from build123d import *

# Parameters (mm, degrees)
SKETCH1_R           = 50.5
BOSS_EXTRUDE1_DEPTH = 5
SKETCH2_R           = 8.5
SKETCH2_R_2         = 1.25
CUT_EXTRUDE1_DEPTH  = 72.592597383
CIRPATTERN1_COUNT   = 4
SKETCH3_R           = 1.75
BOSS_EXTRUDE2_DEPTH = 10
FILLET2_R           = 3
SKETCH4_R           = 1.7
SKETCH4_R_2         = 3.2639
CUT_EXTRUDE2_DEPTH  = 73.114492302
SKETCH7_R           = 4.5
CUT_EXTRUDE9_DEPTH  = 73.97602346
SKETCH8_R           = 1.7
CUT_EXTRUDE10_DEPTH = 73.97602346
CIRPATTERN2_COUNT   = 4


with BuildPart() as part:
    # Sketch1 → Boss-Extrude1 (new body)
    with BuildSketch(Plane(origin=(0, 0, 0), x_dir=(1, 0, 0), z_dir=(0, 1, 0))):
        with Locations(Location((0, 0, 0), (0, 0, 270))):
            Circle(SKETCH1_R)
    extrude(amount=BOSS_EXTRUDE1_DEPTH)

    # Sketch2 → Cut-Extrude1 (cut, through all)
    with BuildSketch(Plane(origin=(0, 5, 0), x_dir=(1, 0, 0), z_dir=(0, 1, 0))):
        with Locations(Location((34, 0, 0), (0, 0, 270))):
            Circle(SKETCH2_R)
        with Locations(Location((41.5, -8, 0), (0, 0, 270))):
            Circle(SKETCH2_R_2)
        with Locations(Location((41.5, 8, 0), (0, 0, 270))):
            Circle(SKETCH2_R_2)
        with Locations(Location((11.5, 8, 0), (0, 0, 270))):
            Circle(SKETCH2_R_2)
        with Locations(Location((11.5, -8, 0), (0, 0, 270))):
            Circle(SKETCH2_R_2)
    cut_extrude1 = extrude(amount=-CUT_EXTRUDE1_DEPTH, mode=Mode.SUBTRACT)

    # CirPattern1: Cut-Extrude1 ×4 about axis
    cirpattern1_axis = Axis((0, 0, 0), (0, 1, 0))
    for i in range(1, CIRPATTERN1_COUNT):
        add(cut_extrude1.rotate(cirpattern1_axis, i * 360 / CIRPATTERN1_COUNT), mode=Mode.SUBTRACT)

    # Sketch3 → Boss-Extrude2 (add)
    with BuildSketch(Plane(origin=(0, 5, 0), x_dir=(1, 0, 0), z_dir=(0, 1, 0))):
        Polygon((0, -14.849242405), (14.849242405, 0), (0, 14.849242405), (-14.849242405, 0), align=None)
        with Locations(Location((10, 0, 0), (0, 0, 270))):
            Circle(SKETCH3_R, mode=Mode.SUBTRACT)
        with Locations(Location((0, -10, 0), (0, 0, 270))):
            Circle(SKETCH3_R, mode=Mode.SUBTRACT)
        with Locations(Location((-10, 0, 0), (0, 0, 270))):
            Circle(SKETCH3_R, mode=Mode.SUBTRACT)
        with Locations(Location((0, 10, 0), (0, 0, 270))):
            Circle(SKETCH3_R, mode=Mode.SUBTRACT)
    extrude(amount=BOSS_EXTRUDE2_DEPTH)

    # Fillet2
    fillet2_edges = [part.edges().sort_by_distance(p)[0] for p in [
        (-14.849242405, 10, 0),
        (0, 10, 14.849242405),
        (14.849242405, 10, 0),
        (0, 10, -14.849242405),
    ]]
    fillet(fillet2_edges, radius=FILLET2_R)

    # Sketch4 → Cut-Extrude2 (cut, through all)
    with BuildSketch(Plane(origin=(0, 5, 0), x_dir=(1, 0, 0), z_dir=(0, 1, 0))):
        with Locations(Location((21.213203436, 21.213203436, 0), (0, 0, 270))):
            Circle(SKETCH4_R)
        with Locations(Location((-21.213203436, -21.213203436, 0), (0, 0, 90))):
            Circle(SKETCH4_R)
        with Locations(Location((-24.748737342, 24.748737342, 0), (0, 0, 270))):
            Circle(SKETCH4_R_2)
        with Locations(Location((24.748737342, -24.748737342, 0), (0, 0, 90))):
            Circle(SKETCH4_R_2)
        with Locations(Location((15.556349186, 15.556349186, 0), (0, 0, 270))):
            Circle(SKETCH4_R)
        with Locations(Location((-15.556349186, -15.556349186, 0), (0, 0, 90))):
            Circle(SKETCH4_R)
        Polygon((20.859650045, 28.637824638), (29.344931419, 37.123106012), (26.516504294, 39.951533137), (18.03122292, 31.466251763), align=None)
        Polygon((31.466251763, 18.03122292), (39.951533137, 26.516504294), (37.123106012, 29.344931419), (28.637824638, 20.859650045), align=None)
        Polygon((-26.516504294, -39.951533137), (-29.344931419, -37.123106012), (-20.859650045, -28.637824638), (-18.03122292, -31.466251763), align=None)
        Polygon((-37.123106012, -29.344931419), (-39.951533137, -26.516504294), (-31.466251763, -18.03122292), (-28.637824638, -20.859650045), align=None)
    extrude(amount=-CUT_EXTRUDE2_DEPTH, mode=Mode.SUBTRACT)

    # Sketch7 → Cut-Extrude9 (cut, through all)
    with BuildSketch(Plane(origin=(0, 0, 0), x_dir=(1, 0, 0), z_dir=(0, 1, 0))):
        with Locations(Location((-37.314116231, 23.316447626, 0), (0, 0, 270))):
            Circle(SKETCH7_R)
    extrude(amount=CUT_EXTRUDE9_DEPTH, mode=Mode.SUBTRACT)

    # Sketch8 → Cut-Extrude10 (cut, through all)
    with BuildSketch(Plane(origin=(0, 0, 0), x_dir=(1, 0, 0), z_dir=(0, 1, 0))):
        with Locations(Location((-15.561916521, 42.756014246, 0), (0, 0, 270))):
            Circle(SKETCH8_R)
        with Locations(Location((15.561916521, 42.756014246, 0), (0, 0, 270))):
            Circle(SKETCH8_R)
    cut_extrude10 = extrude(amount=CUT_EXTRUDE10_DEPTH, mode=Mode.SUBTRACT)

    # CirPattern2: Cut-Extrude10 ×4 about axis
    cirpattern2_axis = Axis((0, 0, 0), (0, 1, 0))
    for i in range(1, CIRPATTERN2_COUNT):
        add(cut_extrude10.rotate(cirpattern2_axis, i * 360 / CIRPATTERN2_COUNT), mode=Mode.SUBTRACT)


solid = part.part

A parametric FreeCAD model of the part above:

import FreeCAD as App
import Part
import Sketcher
Q = App.Units.Quantity


def edges_at(feature, points):
    """Names of the edges that pass closest to the given points."""
    edges = feature.Shape.Edges
    near = lambda p: min(range(len(edges)), key=lambda i: edges[i].distToShape(Part.Vertex(*p))[0])
    return sorted({f"Edge{near(p) + 1}" for p in points})

doc = App.newDocument("Part")
body = doc.addObject("PartDesign::Body", "Body")

sketch1 = body.newObject("Sketcher::SketchObject", "Sketch")
sketch1.AttachmentSupport = (doc.getObject("XZ_Plane"), [""])
sketch1.MapMode = "FlatFace"
sketch1.addGeometry(Part.Circle(App.Vector(0, 0, 0), App.Vector(0, 0, 1), 50.5), False)
sketch1.addConstraint(Sketcher.Constraint("Coincident", 0, 3, -1, 1))
sketch1.addConstraint(Sketcher.Constraint("Diameter", 0, 101.0))
pad1 = body.newObject("PartDesign::Pad", "Pad")
pad1.Profile = sketch1
pad1.Length = 5
pad1.Reversed = True

sketch2 = body.newObject("Sketcher::SketchObject", "Sketch001")
sketch2.AttachmentSupport = (doc.getObject("XZ_Plane"), [""])
sketch2.MapMode = "FlatFace"
sketch2.AttachmentOffset = App.Placement(App.Vector(0, 0, -5), App.Rotation())
sketch2.addGeometry(Part.Circle(App.Vector(34, 0, 0), App.Vector(0, 0, 1), 8.5), False)
sketch2.addGeometry(Part.Circle(App.Vector(41.5, 8, 0), App.Vector(0, 0, 1), 1.25), False)
sketch2.addGeometry(Part.Circle(App.Vector(41.5, -8, 0), App.Vector(0, 0, 1), 1.25), False)
sketch2.addGeometry(Part.Circle(App.Vector(11.5, -8, 0), App.Vector(0, 0, 1), 1.25), False)
sketch2.addGeometry(Part.Circle(App.Vector(11.5, 8, 0), App.Vector(0, 0, 1), 1.25), False)
sketch2.addConstraint(Sketcher.Constraint("Equal", 1, 2))
sketch2.addConstraint(Sketcher.Constraint("Equal", 2, 3))
sketch2.addConstraint(Sketcher.Constraint("Equal", 3, 4))
sketch2.addConstraint(Sketcher.Constraint("Symmetric", 1, 3, 2, 3, -1))
sketch2.addConstraint(Sketcher.Constraint("Symmetric", 3, 3, 4, 3, -1))
sketch2.addConstraint(Sketcher.Constraint("PointOnObject", 0, 3, -1))
sketch2.addConstraint(Sketcher.Constraint("Horizontal", 2, 3, 3, 3))
sketch2.addConstraint(Sketcher.Constraint("Diameter", 0, 17.0))
sketch2.addConstraint(Sketcher.Constraint("Diameter", 1, 2.5))
sketch2.addConstraint(Sketcher.Constraint("DistanceX", -1, 1, 0, 3, 34.0))
sketch2.addConstraint(Sketcher.Constraint("DistanceY", -1, 1, 1, 3, 8.0))
sketch2.addConstraint(Sketcher.Constraint("DistanceX", 3, 3, 2, 3, 30.0))
sketch2.addConstraint(Sketcher.Constraint("DistanceX", -1, 1, 1, 3, 41.5))
pocket1 = body.newObject("PartDesign::Pocket", "Pocket")
pocket1.Profile = sketch2
pocket1.Type = "ThroughAll"
pocket1.Reversed = True
doc.recompute()

polarpattern = body.newObject("PartDesign::PolarPattern", "PolarPattern")
polarpattern.Originals = [pocket1]
polarpattern.Axis = (doc.getObject("Y_Axis"), [""])
polarpattern.Angle = 360
polarpattern.Occurrences = 4
body.Tip = polarpattern

sketch3 = body.newObject("Sketcher::SketchObject", "Sketch002")
sketch3.AttachmentSupport = (doc.getObject("XZ_Plane"), [""])
sketch3.MapMode = "FlatFace"
sketch3.AttachmentOffset = App.Placement(App.Vector(0, 0, -5), App.Rotation())
sketch3.addGeometry(Part.LineSegment(App.Vector(0, 14.849242, 0), App.Vector(14.849242, 0, 0)), False)
sketch3.addGeometry(Part.LineSegment(App.Vector(14.849242, 0, 0), App.Vector(0, -14.849242, 0)), False)
sketch3.addGeometry(Part.LineSegment(App.Vector(0, -14.849242, 0), App.Vector(-14.849242, 0, 0)), False)
sketch3.addGeometry(Part.LineSegment(App.Vector(-14.849242, 0, 0), App.Vector(0, 14.849242, 0)), False)
sketch3.addGeometry(Part.Circle(App.Vector(0, 10, 0), App.Vector(0, 0, 1), 1.75), False)
sketch3.addGeometry(Part.Circle(App.Vector(-10, 0, 0), App.Vector(0, 0, 1), 1.75), False)
sketch3.addGeometry(Part.Circle(App.Vector(10, 0, 0), App.Vector(0, 0, 1), 1.75), False)
sketch3.addGeometry(Part.Circle(App.Vector(0, -10, 0), App.Vector(0, 0, 1), 1.75), False)
sketch3.addConstraint(Sketcher.Constraint("Coincident", 0, 2, 1, 1))
sketch3.addConstraint(Sketcher.Constraint("Coincident", 1, 2, 2, 1))
sketch3.addConstraint(Sketcher.Constraint("Coincident", 2, 2, 3, 1))
sketch3.addConstraint(Sketcher.Constraint("Coincident", 3, 2, 0, 1))
sketch3.addConstraint(Sketcher.Constraint("Equal", 4, 5))
sketch3.addConstraint(Sketcher.Constraint("Equal", 5, 6))
sketch3.addConstraint(Sketcher.Constraint("Equal", 6, 7))
sketch3.addConstraint(Sketcher.Constraint("Symmetric", 5, 3, 6, 3, -1, 1))
sketch3.addConstraint(Sketcher.Constraint("Symmetric", 4, 3, 7, 3, -1, 1))
sketch3.addConstraint(Sketcher.Constraint("Symmetric", 0, 2, 2, 2, -1, 1))
sketch3.addConstraint(Sketcher.Constraint("Symmetric", 1, 2, 3, 2, -1, 1))
sketch3.addConstraint(Sketcher.Constraint("PointOnObject", 4, 3, -2))
sketch3.addConstraint(Sketcher.Constraint("PointOnObject", 5, 3, -1))
sketch3.addConstraint(Sketcher.Constraint("PointOnObject", 0, 2, -1))
sketch3.addConstraint(Sketcher.Constraint("PointOnObject", 1, 2, -2))
sketch3.addConstraint(Sketcher.Constraint("Perpendicular", 0, 1))
sketch3.addConstraint(Sketcher.Constraint("Diameter", 4, 3.5))
sketch3.addConstraint(Sketcher.Constraint("Distance", 0, 21.0))
sketch3.addConstraint(Sketcher.Constraint("DistanceY", -1, 1, 4, 3, 10.0))
sketch3.addConstraint(Sketcher.Constraint("DistanceX", 5, 3, -1, 1, 10.0))
pad2 = body.newObject("PartDesign::Pad", "Pad001")
pad2.Profile = sketch3
pad2.Length = 10
pad2.Reversed = True
doc.recompute()

fillet = body.newObject("PartDesign::Fillet", "Fillet")
fillet.Base = (pad2, edges_at(pad2, [
    (-14.849, 10, 0),
    (0, 10, 14.849),
    (14.849, 10, 0),
    (0, 10, -14.849),
]))
fillet.Radius = 3

sketch4 = body.newObject("Sketcher::SketchObject", "Sketch003")
sketch4.AttachmentSupport = (doc.getObject("XZ_Plane"), [""])
sketch4.MapMode = "FlatFace"
sketch4.AttachmentOffset = App.Placement(App.Vector(0, 0, -5), App.Rotation())
sketch4.addGeometry(Part.Circle(App.Vector(21.213203, -21.213203, 0), App.Vector(0, 0, 1), 1.7), False)
sketch4.addGeometry(Part.Circle(App.Vector(-21.213203, 21.213203, 0), App.Vector(0, 0, 1), 1.7), False)
sketch4.addGeometry(Part.Circle(App.Vector(-24.748737, -24.748737, 0), App.Vector(0, 0, 1), 3.2639), False)
sketch4.addGeometry(Part.Circle(App.Vector(24.748737, 24.748737, 0), App.Vector(0, 0, 1), 3.2639), False)
sketch4.addGeometry(Part.Circle(App.Vector(15.556349, -15.556349, 0), App.Vector(0, 0, 1), 1.7), False)
sketch4.addGeometry(Part.Circle(App.Vector(-15.556349, 15.556349, 0), App.Vector(0, 0, 1), 1.7), False)
sketch4.addGeometry(Part.LineSegment(App.Vector(20.85965, -28.637825, 0), App.Vector(29.344931, -37.123106, 0)), False)
sketch4.addGeometry(Part.LineSegment(App.Vector(29.344931, -37.123106, 0), App.Vector(26.516504, -39.951533, 0)), False)
sketch4.addGeometry(Part.LineSegment(App.Vector(26.516504, -39.951533, 0), App.Vector(18.031223, -31.466252, 0)), False)
sketch4.addGeometry(Part.LineSegment(App.Vector(18.031223, -31.466252, 0), App.Vector(20.85965, -28.637825, 0)), False)
sketch4.addGeometry(Part.LineSegment(App.Vector(31.466252, -18.031223, 0), App.Vector(39.951533, -26.516504, 0)), False)
sketch4.addGeometry(Part.LineSegment(App.Vector(39.951533, -26.516504, 0), App.Vector(37.123106, -29.344931, 0)), False)
sketch4.addGeometry(Part.LineSegment(App.Vector(37.123106, -29.344931, 0), App.Vector(28.637825, -20.85965, 0)), False)
sketch4.addGeometry(Part.LineSegment(App.Vector(28.637825, -20.85965, 0), App.Vector(31.466252, -18.031223, 0)), False)
sketch4.addGeometry(Part.LineSegment(App.Vector(-29.344931, 37.123106, 0), App.Vector(-26.516504, 39.951533, 0)), False)
sketch4.addGeometry(Part.LineSegment(App.Vector(-26.516504, 39.951533, 0), App.Vector(-18.031223, 31.466252, 0)), False)
sketch4.addGeometry(Part.LineSegment(App.Vector(-18.031223, 31.466252, 0), App.Vector(-20.85965, 28.637825, 0)), False)
sketch4.addGeometry(Part.LineSegment(App.Vector(-20.85965, 28.637825, 0), App.Vector(-29.344931, 37.123106, 0)), False)
sketch4.addGeometry(Part.LineSegment(App.Vector(-39.951533, 26.516504, 0), App.Vector(-37.123106, 29.344931, 0)), False)
sketch4.addGeometry(Part.LineSegment(App.Vector(-37.123106, 29.344931, 0), App.Vector(-28.637825, 20.85965, 0)), False)
sketch4.addGeometry(Part.LineSegment(App.Vector(-28.637825, 20.85965, 0), App.Vector(-31.466252, 18.031223, 0)), False)
sketch4.addGeometry(Part.LineSegment(App.Vector(-31.466252, 18.031223, 0), App.Vector(-39.951533, 26.516504, 0)), False)
sketch4.addConstraint(Sketcher.Constraint("Coincident", 6, 2, 7, 1))
sketch4.addConstraint(Sketcher.Constraint("Coincident", 7, 2, 8, 1))
sketch4.addConstraint(Sketcher.Constraint("Coincident", 8, 2, 9, 1))
sketch4.addConstraint(Sketcher.Constraint("Coincident", 9, 2, 6, 1))
sketch4.addConstraint(Sketcher.Constraint("Coincident", 10, 2, 11, 1))
sketch4.addConstraint(Sketcher.Constraint("Coincident", 11, 2, 12, 1))
sketch4.addConstraint(Sketcher.Constraint("Coincident", 12, 2, 13, 1))
sketch4.addConstraint(Sketcher.Constraint("Coincident", 13, 2, 10, 1))
sketch4.addConstraint(Sketcher.Constraint("Coincident", 14, 2, 15, 1))
sketch4.addConstraint(Sketcher.Constraint("Coincident", 15, 2, 16, 1))
sketch4.addConstraint(Sketcher.Constraint("Coincident", 16, 2, 17, 1))
sketch4.addConstraint(Sketcher.Constraint("Coincident", 17, 2, 14, 1))
sketch4.addConstraint(Sketcher.Constraint("Coincident", 18, 2, 19, 1))
sketch4.addConstraint(Sketcher.Constraint("Coincident", 19, 2, 20, 1))
sketch4.addConstraint(Sketcher.Constraint("Coincident", 20, 2, 21, 1))
sketch4.addConstraint(Sketcher.Constraint("Coincident", 21, 2, 18, 1))
sketch4.addConstraint(Sketcher.Constraint("Equal", 0, 1))
sketch4.addConstraint(Sketcher.Constraint("Equal", 2, 3))
sketch4.addConstraint(Sketcher.Constraint("Equal", 1, 4))
sketch4.addConstraint(Sketcher.Constraint("Equal", 4, 5))
sketch4.addConstraint(Sketcher.Constraint("Symmetric", 0, 3, 1, 3, -1, 1))
sketch4.addConstraint(Sketcher.Constraint("Symmetric", 2, 3, 3, 3, -1, 1))
sketch4.addConstraint(Sketcher.Constraint("Symmetric", 4, 3, 5, 3, -1, 1))
sketch4.addConstraint(Sketcher.Constraint("Symmetric", 7, 2, 14, 2, -1, 1))
sketch4.addConstraint(Sketcher.Constraint("Symmetric", 8, 2, 15, 2, -1, 1))
sketch4.addConstraint(Sketcher.Constraint("Symmetric", 9, 2, 16, 2, -1, 1))
sketch4.addConstraint(Sketcher.Constraint("Symmetric", 6, 2, 17, 2, -1, 1))
sketch4.addConstraint(Sketcher.Constraint("Symmetric", 11, 2, 18, 2, -1, 1))
sketch4.addConstraint(Sketcher.Constraint("Symmetric", 12, 2, 19, 2, -1, 1))
sketch4.addConstraint(Sketcher.Constraint("Symmetric", 13, 2, 20, 2, -1, 1))
sketch4.addConstraint(Sketcher.Constraint("Symmetric", 10, 2, 21, 2, -1, 1))
sketch4.addConstraint(Sketcher.Constraint("Perpendicular", 6, 7))
sketch4.addConstraint(Sketcher.Constraint("Perpendicular", 7, 8))
sketch4.addConstraint(Sketcher.Constraint("Perpendicular", 8, 9))
sketch4.addConstraint(Sketcher.Constraint("Perpendicular", 9, 10))
sketch4.addConstraint(Sketcher.Constraint("Perpendicular", 10, 11))
sketch4.addConstraint(Sketcher.Constraint("Perpendicular", 11, 12))
sketch4.addConstraint(Sketcher.Constraint("Perpendicular", 12, 13))
sketch4.addConstraint(Sketcher.Constraint("Equal", 8, 10))
sketch4.addConstraint(Sketcher.Constraint("Equal", 9, 11))
sketch4.addConstraint(Sketcher.Constraint("Diameter", 0, 3.4))
sketch4.addConstraint(Sketcher.Constraint("Angle", 6, Q("-45 deg")))
sketch4.addConstraint(Sketcher.Constraint("Distance", 6, 12.0))
sketch4.addConstraint(Sketcher.Constraint("Distance", 7, 4.0))
sketch4.addConstraint(Sketcher.Constraint("Diameter", 2, 6.5278))
sketch4.addConstraint(Sketcher.Constraint("DistanceX", 5, 3, 4, 3, 31.112698))
sketch4.addConstraint(Sketcher.Constraint("DistanceY", 4, 3, 5, 3, 31.112698))
sketch4.addConstraint(Sketcher.Constraint("DistanceX", 0, 3, 7, 2, 5.303301))
sketch4.addConstraint(Sketcher.Constraint("DistanceX", 4, 3, 9, 2, 5.303301))
sketch4.addConstraint(Sketcher.Constraint("DistanceX", 6, 2, 10, 2, 10.606602))
sketch4.addConstraint(Sketcher.Constraint("DistanceY", 6, 2, 10, 2, 10.606602))
sketch4.addConstraint(Sketcher.Constraint("DistanceY", 10, 2, 0, 3, 5.303301))
sketch4.addConstraint(Sketcher.Constraint("DistanceY", 12, 2, 4, 3, 5.303301))
sketch4.addConstraint(Sketcher.Constraint("DistanceX", 2, 3, 0, 3, 45.961941))
sketch4.addConstraint(Sketcher.Constraint("DistanceY", 2, 3, 1, 3, 45.961941))
pocket2 = body.newObject("PartDesign::Pocket", "Pocket001")
pocket2.Profile = sketch4
pocket2.Type = "ThroughAll"
pocket2.Reversed = True

sketch5 = body.newObject("Sketcher::SketchObject", "Sketch004")
sketch5.AttachmentSupport = (doc.getObject("XZ_Plane"), [""])
sketch5.MapMode = "FlatFace"
sketch5.addGeometry(Part.Circle(App.Vector(-37.314116, -23.316448, 0), App.Vector(0, 0, 1), 4.5), False)
sketch5.addConstraint(Sketcher.Constraint("Diameter", 0, 9.0))
sketch5.addConstraint(Sketcher.Constraint("DistanceX", 0, 3, -1, 1, 37.314116))
sketch5.addConstraint(Sketcher.Constraint("DistanceY", 0, 3, -1, 1, 23.316448))
pocket3 = body.newObject("PartDesign::Pocket", "Pocket002")
pocket3.Profile = sketch5
pocket3.Type = "ThroughAll"

sketch6 = body.newObject("Sketcher::SketchObject", "Sketch005")
sketch6.AttachmentSupport = (doc.getObject("XZ_Plane"), [""])
sketch6.MapMode = "FlatFace"
sketch6.addGeometry(Part.Circle(App.Vector(-15.561917, -42.756014, 0), App.Vector(0, 0, 1), 1.7), False)
sketch6.addGeometry(Part.Circle(App.Vector(15.561917, -42.756014, 0), App.Vector(0, 0, 1), 1.7), False)
sketch6.addConstraint(Sketcher.Constraint("Equal", 0, 1))
sketch6.addConstraint(Sketcher.Constraint("Symmetric", 0, 3, 1, 3, -2))
sketch6.addConstraint(Sketcher.Constraint("Diameter", 0, 3.4))
sketch6.addConstraint(Sketcher.Constraint("DistanceX", 0, 3, -1, 1, 15.561917))
sketch6.addConstraint(Sketcher.Constraint("DistanceY", 0, 3, -1, 1, 42.756014))
pocket4 = body.newObject("PartDesign::Pocket", "Pocket003")
pocket4.Profile = sketch6
pocket4.Type = "ThroughAll"
doc.recompute()

polarpattern2 = body.newObject("PartDesign::PolarPattern", "PolarPattern001")
polarpattern2.Originals = [pocket4]
polarpattern2.Axis = (doc.getObject("Y_Axis"), [""])
polarpattern2.Angle = 360
polarpattern2.Occurrences = 4
body.Tip = polarpattern2

doc.recompute()
